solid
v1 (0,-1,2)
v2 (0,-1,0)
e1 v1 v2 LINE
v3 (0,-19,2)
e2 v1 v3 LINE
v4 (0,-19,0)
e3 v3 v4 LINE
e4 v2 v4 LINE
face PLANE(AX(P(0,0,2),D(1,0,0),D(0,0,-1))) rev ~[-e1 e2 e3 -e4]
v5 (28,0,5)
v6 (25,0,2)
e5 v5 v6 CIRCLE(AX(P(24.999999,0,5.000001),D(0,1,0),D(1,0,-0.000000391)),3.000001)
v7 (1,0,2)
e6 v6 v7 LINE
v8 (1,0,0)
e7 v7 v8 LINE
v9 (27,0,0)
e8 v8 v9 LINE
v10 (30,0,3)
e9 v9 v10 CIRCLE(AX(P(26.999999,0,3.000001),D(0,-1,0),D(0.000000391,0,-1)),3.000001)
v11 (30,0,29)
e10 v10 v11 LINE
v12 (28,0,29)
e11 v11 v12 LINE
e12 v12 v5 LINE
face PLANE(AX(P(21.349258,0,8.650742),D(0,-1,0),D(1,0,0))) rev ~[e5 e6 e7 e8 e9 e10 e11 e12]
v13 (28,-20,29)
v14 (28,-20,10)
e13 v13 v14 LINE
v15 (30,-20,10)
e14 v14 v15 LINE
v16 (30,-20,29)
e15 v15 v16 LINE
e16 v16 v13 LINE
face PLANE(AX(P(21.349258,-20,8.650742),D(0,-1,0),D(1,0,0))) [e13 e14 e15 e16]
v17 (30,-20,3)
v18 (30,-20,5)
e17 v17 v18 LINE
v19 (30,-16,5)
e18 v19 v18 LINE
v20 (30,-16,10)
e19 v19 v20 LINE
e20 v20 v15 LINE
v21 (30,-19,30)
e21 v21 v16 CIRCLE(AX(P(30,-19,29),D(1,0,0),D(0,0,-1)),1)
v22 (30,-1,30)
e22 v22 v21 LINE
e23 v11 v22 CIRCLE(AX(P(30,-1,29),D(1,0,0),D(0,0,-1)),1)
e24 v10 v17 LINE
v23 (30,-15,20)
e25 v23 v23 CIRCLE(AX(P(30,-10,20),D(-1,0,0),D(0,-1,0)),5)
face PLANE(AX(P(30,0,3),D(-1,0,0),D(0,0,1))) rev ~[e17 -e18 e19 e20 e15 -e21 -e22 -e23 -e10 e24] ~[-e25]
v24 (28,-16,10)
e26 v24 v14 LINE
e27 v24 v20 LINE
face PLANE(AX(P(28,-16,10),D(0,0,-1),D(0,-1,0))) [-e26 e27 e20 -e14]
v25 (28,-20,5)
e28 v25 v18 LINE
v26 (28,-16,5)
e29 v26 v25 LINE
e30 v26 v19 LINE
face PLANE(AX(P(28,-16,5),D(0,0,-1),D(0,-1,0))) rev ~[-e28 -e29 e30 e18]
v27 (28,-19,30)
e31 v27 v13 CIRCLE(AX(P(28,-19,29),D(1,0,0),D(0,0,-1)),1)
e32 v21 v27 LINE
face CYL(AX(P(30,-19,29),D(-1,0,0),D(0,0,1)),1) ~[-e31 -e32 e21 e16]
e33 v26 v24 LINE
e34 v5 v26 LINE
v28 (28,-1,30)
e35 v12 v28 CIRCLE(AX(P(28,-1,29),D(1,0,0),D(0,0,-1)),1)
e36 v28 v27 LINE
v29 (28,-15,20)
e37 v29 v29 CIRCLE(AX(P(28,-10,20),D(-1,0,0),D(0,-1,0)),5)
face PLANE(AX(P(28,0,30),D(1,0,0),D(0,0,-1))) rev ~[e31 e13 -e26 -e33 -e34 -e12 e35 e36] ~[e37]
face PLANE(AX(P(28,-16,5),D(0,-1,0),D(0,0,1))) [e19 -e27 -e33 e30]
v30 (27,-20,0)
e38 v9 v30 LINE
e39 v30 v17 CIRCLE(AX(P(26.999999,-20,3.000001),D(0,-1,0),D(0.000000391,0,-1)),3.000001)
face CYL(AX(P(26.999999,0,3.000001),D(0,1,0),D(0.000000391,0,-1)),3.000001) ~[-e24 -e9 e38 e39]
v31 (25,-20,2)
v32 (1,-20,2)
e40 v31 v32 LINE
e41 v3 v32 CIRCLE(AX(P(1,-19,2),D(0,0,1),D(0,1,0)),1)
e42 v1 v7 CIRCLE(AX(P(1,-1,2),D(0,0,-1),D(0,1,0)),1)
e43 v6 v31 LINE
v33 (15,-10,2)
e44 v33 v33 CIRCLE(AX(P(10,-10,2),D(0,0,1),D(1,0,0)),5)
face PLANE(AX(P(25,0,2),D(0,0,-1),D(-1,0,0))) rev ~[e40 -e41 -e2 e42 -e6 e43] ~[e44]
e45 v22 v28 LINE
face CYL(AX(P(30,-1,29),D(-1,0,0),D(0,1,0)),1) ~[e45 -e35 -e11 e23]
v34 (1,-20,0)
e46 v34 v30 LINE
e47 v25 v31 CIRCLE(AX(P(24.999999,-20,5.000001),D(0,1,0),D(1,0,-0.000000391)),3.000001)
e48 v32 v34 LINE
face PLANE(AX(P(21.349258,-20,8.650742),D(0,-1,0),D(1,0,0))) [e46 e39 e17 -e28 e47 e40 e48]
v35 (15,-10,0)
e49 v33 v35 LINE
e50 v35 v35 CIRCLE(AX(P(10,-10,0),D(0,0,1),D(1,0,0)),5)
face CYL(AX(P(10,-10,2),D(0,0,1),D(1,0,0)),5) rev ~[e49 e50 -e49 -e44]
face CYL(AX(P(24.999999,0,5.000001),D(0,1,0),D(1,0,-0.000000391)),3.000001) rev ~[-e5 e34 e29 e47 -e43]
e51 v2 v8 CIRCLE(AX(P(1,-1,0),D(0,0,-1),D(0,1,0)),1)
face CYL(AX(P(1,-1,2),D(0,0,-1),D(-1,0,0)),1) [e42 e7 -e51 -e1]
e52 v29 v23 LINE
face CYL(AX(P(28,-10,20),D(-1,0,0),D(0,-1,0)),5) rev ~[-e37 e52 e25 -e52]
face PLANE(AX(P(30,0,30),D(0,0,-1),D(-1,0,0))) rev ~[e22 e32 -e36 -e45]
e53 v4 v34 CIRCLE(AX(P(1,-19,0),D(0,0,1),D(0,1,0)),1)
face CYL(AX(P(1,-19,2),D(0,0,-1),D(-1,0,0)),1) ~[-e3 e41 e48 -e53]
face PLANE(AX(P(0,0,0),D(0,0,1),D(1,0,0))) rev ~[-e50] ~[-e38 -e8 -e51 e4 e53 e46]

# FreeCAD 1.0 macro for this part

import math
import FreeCAD as App
import Part
import Sketcher
from FreeCAD import Vector


def edges_at(feature, points):
    """Names of the edges that pass closest to the given points."""
    edges = feature.Shape.Edges
    near = lambda p: min(range(len(edges)), key=lambda i: edges[i].distToShape(Part.Vertex(*p))[0])
    return sorted({f"Edge{near(p) + 1}" for p in points})

doc = App.newDocument("Part")
params = doc.addObject("Spreadsheet::Sheet", "Params")
for row, (alias, value) in enumerate([
    ("sketch1_radius", "3.000001 mm"),
    ("sketch1_width", "27 mm"),
    ("sketch1_width2", "2 mm"),
    ("pad1_length", "20 mm"),
    ("sketch2_diameter", "10 mm"),
    ("sketch3_diameter", "10 mm"),
    ("sketch3_width", "4 mm"),
    ("sketch3_height", "5 mm"),
    ("fillet_radius", "1 mm"),
], start=1):
    params.set(f"A{row}", alias)
    params.set(f"B{row}", "=" + value)
    params.setAlias(f"B{row}", alias)

body = doc.addObject("PartDesign::Body", "Body")

# Sketch on XZ plane
sketch1 = body.newObject("Sketcher::SketchObject", "Sketch")
sketch1.AttachmentSupport = (doc.getObject("XZ_Plane"), [""])
sketch1.MapMode = "FlatFace"
sketch1.addGeometry([
    Part.LineSegment(Vector(0, 2, 0), Vector(0, 0, 0)),  # 0
    Part.LineSegment(Vector(0, 0, 0), Vector(27, 0, 0)),  # 1
    Part.ArcOfCircle(Part.Circle(Vector(27, 3, 0), Vector(0, 0, 1), 3), math.radians(-90), math.radians(0)),  # 2
    Part.LineSegment(Vector(30, 3, 0), Vector(30, 30, 0)),  # 3
    Part.LineSegment(Vector(30, 30, 0), Vector(28, 30, 0)),  # 4
    Part.LineSegment(Vector(28, 30, 0), Vector(28, 5, 0)),  # 5
    Part.ArcOfCircle(Part.Circle(Vector(25, 5, 0), Vector(0, 0, 1), 3), math.radians(-90), math.radians(0)),  # 6
    Part.LineSegment(Vector(25, 2, 0), Vector(0, 2, 0)),  # 7
], False)
sketch1.addConstraint([
    Sketcher.Constraint("Coincident", 0, 2, 1, 1),
    Sketcher.Constraint("Tangent", 1, 2, 2, 1),
    Sketcher.Constraint("Tangent", 2, 2, 3, 1),
    Sketcher.Constraint("Coincident", 3, 2, 4, 1),
    Sketcher.Constraint("Coincident", 4, 2, 5, 1),
    Sketcher.Constraint("Tangent", 5, 2, 6, 2),
    Sketcher.Constraint("Tangent", 6, 1, 7, 1),
    Sketcher.Constraint("Coincident", 7, 2, 0, 1),
    Sketcher.Constraint("Vertical", 0),
    Sketcher.Constraint("Horizontal", 1),
    Sketcher.Constraint("Vertical", 3),
    Sketcher.Constraint("Horizontal", 4),
    Sketcher.Constraint("Vertical", 5),
    Sketcher.Constraint("Horizontal", 7),
    Sketcher.Constraint("Coincident", 0, 2, -1, 1),
    Sketcher.Constraint("Equal", 2, 6),
    Sketcher.Constraint("Equal", 4, 0),
    Sketcher.Constraint("Equal", 1, 3),
    Sketcher.Constraint("Radius", 2, 3.000001),
    Sketcher.Constraint("DistanceX", 1, 1, 1, 2, 27.0),
    Sketcher.Constraint("DistanceX", 4, 2, 4, 1, 2.0),
])
sketch1.setExpression("Constraints[18]", "Params.sketch1_radius")
sketch1.setExpression("Constraints[19]", "Params.sketch1_width")
sketch1.setExpression("Constraints[20]", "Params.sketch1_width2")
pad1 = body.newObject("PartDesign::Pad", "Pad")
pad1.Profile = sketch1
pad1.setExpression("Length", "Params.pad1_length")

# Sketch on XY plane
sketch2 = body.newObject("Sketcher::SketchObject", "Sketch001")
sketch2.AttachmentSupport = (doc.getObject("XY_Plane"), [""])
sketch2.MapMode = "FlatFace"
sketch2.AttachmentOffset = App.Placement(Vector(0, 0, 2), App.Rotation())
sketch2.addGeometry(Part.Circle(Vector(10, -10, 0), Vector(0, 0, 1), 5), False)
sketch2.addConstraint([
    Sketcher.Constraint("Diameter", 0, 10.0),
    Sketcher.Constraint("DistanceX", -1, 1, 0, 3, 10.0),
    Sketcher.Constraint("DistanceY", 0, 3, -1, 1, 10.0),
])
sketch2.setExpression("Constraints[0]", "Params.sketch2_diameter")
pocket1 = body.newObject("PartDesign::Pocket", "Pocket")
pocket1.Profile = sketch2
pocket1.Type = "ThroughAll"

# Sketch on YZ plane
sketch3 = body.newObject("Sketcher::SketchObject", "Sketch002")
sketch3.AttachmentSupport = (doc.getObject("YZ_Plane"), [""])
sketch3.MapMode = "FlatFace"
sketch3.AttachmentOffset = App.Placement(Vector(0, 0, 28), App.Rotation())
sketch3.addGeometry([
    Part.Circle(Vector(-10, 20, 0), Vector(0, 0, 1), 5),  # 0
    Part.LineSegment(Vector(-16, 10, 0), Vector(-16, 5, 0)),  # 1
    Part.LineSegment(Vector(-16, 5, 0), Vector(-20, 5, 0)),  # 2
    Part.LineSegment(Vector(-20, 5, 0), Vector(-20, 10, 0)),  # 3
    Part.LineSegment(Vector(-20, 10, 0), Vector(-16, 10, 0)),  # 4
], False)
sketch3.addConstraint([
    Sketcher.Constraint("Coincident", 1, 2, 2, 1),
    Sketcher.Constraint("Coincident", 2, 2, 3, 1),
    Sketcher.Constraint("Coincident", 3, 2, 4, 1),
    Sketcher.Constraint("Coincident", 4, 2, 1, 1),
    Sketcher.Constraint("Vertical", 1),
    Sketcher.Constraint("Horizontal", 2),
    Sketcher.Constraint("Vertical", 3),
    Sketcher.Constraint("Horizontal", 4),
    Sketcher.Constraint("Diameter", 0, 10.0),
    Sketcher.Constraint("DistanceX", 2, 2, 2, 1, 4.0),
    Sketcher.Constraint("DistanceY", 1, 2, 1, 1, 5.0),
    Sketcher.Constraint("DistanceX", 0, 3, -1, 1, 10.0),
    Sketcher.Constraint("DistanceY", -1, 1, 0, 3, 20.0),
    Sketcher.Constraint("DistanceX", 1, 2, -1, 1, 16.0),
    Sketcher.Constraint("DistanceY", -1, 1, 1, 2, 5.0),
])
sketch3.setExpression("Constraints[8]", "Params.sketch3_diameter")
sketch3.setExpression("Constraints[9]", "Params.sketch3_width")
sketch3.setExpression("Constraints[10]", "Params.sketch3_height")
pocket2 = body.newObject("PartDesign::Pocket", "Pocket001")
pocket2.Profile = sketch3
pocket2.Type = "ThroughAll"
pocket2.Reversed = True
doc.recompute()

fillet = body.newObject("PartDesign::Fillet", "Fillet")
fillet.Base = (pocket2, edges_at(pocket2, [
    (0, -20, 1),
    (29, -20, 30),
    (29, 0, 30),
    (0, 0, 1),
]))
fillet.setExpression("Radius", "Params.fillet_radius")

doc.recompute()
